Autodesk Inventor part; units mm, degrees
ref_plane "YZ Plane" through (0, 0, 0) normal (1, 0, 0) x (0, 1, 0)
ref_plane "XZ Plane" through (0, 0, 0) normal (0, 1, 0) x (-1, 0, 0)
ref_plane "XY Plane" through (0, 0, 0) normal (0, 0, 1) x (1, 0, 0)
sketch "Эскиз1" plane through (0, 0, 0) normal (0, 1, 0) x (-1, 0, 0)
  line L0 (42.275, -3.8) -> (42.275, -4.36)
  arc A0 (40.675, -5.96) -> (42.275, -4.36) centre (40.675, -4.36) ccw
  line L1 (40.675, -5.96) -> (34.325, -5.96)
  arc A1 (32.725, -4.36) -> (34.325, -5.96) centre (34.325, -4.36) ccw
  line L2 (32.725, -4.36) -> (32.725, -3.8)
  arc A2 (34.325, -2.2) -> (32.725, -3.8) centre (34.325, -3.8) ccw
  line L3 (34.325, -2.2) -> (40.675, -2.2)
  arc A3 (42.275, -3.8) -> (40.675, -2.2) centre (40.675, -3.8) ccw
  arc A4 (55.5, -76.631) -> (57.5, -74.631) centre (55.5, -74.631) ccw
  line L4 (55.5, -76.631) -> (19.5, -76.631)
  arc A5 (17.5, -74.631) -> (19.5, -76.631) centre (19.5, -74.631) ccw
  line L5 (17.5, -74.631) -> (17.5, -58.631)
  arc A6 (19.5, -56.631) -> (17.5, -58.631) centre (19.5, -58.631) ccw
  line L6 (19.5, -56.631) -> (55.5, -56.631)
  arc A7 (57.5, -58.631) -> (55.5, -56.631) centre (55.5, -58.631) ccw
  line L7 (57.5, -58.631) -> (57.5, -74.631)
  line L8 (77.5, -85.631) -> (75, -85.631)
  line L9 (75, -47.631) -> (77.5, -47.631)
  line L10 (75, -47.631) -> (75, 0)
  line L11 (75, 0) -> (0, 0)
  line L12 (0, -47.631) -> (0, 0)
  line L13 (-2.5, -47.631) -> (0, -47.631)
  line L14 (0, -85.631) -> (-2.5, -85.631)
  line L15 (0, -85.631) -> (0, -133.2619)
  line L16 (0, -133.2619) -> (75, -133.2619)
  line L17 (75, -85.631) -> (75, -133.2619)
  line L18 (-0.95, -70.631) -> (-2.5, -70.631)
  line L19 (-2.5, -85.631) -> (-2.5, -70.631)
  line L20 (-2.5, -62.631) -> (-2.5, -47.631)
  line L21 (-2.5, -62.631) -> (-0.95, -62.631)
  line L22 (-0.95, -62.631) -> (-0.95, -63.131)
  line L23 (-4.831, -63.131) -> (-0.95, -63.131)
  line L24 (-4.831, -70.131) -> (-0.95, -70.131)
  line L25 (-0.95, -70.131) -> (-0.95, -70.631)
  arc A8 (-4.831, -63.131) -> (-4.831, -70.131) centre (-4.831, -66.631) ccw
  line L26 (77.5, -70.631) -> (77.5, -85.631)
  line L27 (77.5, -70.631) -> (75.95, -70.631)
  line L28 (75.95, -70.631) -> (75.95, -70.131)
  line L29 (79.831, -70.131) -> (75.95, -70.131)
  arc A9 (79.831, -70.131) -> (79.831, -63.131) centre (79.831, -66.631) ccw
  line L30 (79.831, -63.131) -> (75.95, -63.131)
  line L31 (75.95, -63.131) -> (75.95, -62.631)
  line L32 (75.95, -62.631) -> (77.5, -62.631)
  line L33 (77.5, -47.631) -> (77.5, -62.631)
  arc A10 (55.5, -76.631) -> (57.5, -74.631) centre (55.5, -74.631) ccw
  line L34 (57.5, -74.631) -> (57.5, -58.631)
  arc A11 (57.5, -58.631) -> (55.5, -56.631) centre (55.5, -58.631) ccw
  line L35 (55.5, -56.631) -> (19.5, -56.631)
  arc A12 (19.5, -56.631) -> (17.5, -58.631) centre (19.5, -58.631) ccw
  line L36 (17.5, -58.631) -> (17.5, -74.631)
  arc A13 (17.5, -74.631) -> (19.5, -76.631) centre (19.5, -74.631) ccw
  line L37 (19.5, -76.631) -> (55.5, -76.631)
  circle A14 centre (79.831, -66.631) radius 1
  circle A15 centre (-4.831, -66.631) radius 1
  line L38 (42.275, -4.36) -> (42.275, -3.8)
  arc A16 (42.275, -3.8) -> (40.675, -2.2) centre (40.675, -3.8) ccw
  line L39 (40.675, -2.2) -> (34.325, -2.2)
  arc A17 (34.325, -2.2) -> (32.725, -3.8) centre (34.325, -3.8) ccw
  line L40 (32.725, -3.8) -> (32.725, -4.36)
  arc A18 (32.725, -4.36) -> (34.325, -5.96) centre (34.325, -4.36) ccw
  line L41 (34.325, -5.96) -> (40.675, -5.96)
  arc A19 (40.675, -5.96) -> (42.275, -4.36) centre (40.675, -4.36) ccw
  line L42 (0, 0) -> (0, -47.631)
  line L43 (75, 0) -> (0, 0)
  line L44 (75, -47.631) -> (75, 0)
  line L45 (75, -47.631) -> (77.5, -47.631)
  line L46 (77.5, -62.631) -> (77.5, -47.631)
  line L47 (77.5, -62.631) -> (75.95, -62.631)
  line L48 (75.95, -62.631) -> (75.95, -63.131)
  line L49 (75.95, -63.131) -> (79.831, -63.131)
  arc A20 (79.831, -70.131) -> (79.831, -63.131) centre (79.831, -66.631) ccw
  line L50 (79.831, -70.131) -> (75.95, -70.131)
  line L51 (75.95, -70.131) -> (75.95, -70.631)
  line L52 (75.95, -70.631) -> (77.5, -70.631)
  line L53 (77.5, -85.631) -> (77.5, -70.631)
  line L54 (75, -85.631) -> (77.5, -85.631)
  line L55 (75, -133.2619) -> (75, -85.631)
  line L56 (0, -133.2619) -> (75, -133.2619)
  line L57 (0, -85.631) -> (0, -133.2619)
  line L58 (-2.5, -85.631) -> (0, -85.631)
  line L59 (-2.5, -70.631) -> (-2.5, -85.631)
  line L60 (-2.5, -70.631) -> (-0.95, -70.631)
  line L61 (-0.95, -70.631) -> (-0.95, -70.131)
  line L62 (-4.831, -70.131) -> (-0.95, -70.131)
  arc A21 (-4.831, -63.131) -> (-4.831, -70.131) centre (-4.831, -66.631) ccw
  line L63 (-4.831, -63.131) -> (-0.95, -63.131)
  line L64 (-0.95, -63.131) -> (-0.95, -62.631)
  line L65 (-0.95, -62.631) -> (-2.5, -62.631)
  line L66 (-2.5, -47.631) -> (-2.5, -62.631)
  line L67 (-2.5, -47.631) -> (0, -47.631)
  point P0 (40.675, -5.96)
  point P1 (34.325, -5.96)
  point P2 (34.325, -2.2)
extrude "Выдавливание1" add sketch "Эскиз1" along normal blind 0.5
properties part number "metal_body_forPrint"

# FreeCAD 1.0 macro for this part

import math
import FreeCAD as App
import Part
import Sketcher
from FreeCAD import Vector
Q = App.Units.Quantity

doc = App.newDocument("Part")
body = doc.addObject("PartDesign::Body", "Body")

# Sketch on XZ plane
sketch1 = body.newObject("Sketcher::SketchObject", "Sketch")
sketch1.AttachmentSupport = (doc.getObject("XZ_Plane"), [""])
sketch1.MapMode = "FlatFace"
sketch1.addGeometry(Part.LineSegment(Vector(-75, -85.631, 0), Vector(-77.5, -85.631, 0)), False)
sketch1.addGeometry(Part.LineSegment(Vector(-77.5, -85.631, 0), Vector(-77.5, -70.631, 0)), False)
sketch1.addGeometry(Part.LineSegment(Vector(-77.5, -70.631, 0), Vector(-75.95, -70.631, 0)), False)
sketch1.addGeometry(Part.LineSegment(Vector(-75.95, -70.631, 0), Vector(-75.95, -70.131, 0)), False)
sketch1.addGeometry(Part.LineSegment(Vector(-75.95, -70.131, 0), Vector(-79.831, -70.131, 0)), False)
sketch1.addGeometry(Part.ArcOfCircle(Part.Circle(Vector(-79.831, -66.631, 0), Vector(0, 0, 1), 3.5), math.radians(90), math.radians(270)), False)
sketch1.addGeometry(Part.LineSegment(Vector(-79.831, -63.131, 0), Vector(-75.95, -63.131, 0)), False)
sketch1.addGeometry(Part.LineSegment(Vector(-75.95, -63.131, 0), Vector(-75.95, -62.631, 0)), False)
sketch1.addGeometry(Part.LineSegment(Vector(-75.95, -62.631, 0), Vector(-77.5, -62.631, 0)), False)
sketch1.addGeometry(Part.LineSegment(Vector(-77.5, -62.631, 0), Vector(-77.5, -47.631, 0)), False)
sketch1.addGeometry(Part.LineSegment(Vector(-77.5, -47.631, 0), Vector(-75, -47.631, 0)), False)
sketch1.addGeometry(Part.LineSegment(Vector(-75, -47.631, 0), Vector(-75, 0, 0)), False)
sketch1.addGeometry(Part.LineSegment(Vector(-75, 0, 0), Vector(0, 0, 0)), False)
sketch1.addGeometry(Part.LineSegment(Vector(0, 0, 0), Vector(0, -47.631, 0)), False)
sketch1.addGeometry(Part.LineSegment(Vector(0, -47.631, 0), Vector(2.5, -47.631, 0)), False)
sketch1.addGeometry(Part.LineSegment(Vector(2.5, -47.631, 0), Vector(2.5, -62.631, 0)), False)
sketch1.addGeometry(Part.LineSegment(Vector(2.5, -62.631, 0), Vector(0.95, -62.631, 0)), False)
sketch1.addGeometry(Part.LineSegment(Vector(0.95, -62.631, 0), Vector(0.95, -63.131, 0)), False)
sketch1.addGeometry(Part.LineSegment(Vector(0.95, -63.131, 0), Vector(4.831, -63.131, 0)), False)
sketch1.addGeometry(Part.ArcOfCircle(Part.Circle(Vector(4.831, -66.631, 0), Vector(0, 0, 1), 3.5), math.radians(-90), math.radians(90)), False)
sketch1.addGeometry(Part.LineSegment(Vector(4.831, -70.131, 0), Vector(0.95, -70.131, 0)), False)
sketch1.addGeometry(Part.LineSegment(Vector(0.95, -70.131, 0), Vector(0.95, -70.631, 0)), False)
sketch1.addGeometry(Part.LineSegment(Vector(0.95, -70.631, 0), Vector(2.5, -70.631, 0)), False)
sketch1.addGeometry(Part.LineSegment(Vector(2.5, -70.631, 0), Vector(2.5, -85.631, 0)), False)
sketch1.addGeometry(Part.LineSegment(Vector(2.5, -85.631, 0), Vector(0, -85.631, 0)), False)
sketch1.addGeometry(Part.LineSegment(Vector(0, -85.631, 0), Vector(0, -133.2619, 0)), False)
sketch1.addGeometry(Part.LineSegment(Vector(0, -133.2619, 0), Vector(-75, -133.2619, 0)), False)
sketch1.addGeometry(Part.LineSegment(Vector(-75, -133.2619, 0), Vector(-75, -85.631, 0)), False)
sketch1.addGeometry(Part.Circle(Vector(4.831, -66.631, 0), Vector(0, 0, 1), 1), False)
sketch1.addGeometry(Part.ArcOfCircle(Part.Circle(Vector(-55.5, -74.631, 0), Vector(0, 0, 1), 2), math.radians(180), math.radians(270)), False)
sketch1.addGeometry(Part.LineSegment(Vector(-55.5, -76.631, 0), Vector(-19.5, -76.631, 0)), False)
sketch1.addGeometry(Part.ArcOfCircle(Part.Circle(Vector(-19.5, -74.631, 0), Vector(0, 0, 1), 2), math.radians(-90), math.radians(0)), False)
sketch1.addGeometry(Part.LineSegment(Vector(-17.5, -74.631, 0), Vector(-17.5, -58.631, 0)), False)
sketch1.addGeometry(Part.ArcOfCircle(Part.Circle(Vector(-19.5, -58.631, 0), Vector(0, 0, 1), 2), math.radians(0), math.radians(90)), False)
sketch1.addGeometry(Part.LineSegment(Vector(-19.5, -56.631, 0), Vector(-55.5, -56.631, 0)), False)
sketch1.addGeometry(Part.ArcOfCircle(Part.Circle(Vector(-55.5, -58.631, 0), Vector(0, 0, 1), 2), math.radians(90), math.radians(180)), False)
sketch1.addGeometry(Part.LineSegment(Vector(-57.5, -58.631, 0), Vector(-57.5, -74.631, 0)), False)
sketch1.addGeometry(Part.Circle(Vector(-79.831, -66.631, 0), Vector(0, 0, 1), 1), False)
sketch1.addGeometry(Part.ArcOfCircle(Part.Circle(Vector(-40.675, -3.8, 0), Vector(0, 0, 1), 1.6), math.radians(90), math.radians(180)), False)
sketch1.addGeometry(Part.LineSegment(Vector(-42.275, -3.8, 0), Vector(-42.275, -4.36, 0)), False)
sketch1.addGeometry(Part.ArcOfCircle(Part.Circle(Vector(-40.675, -4.36, 0), Vector(0, 0, 1), 1.6), math.radians(180), math.radians(270)), False)
sketch1.addGeometry(Part.LineSegment(Vector(-40.675, -5.96, 0), Vector(-34.325, -5.96, 0)), False)
sketch1.addGeometry(Part.ArcOfCircle(Part.Circle(Vector(-34.325, -4.36, 0), Vector(0, 0, 1), 1.6), math.radians(-90), math.radians(0)), False)
sketch1.addGeometry(Part.LineSegment(Vector(-32.725, -4.36, 0), Vector(-32.725, -3.8, 0)), False)
sketch1.addGeometry(Part.ArcOfCircle(Part.Circle(Vector(-34.325, -3.8, 0), Vector(0, 0, 1), 1.6), math.radians(0), math.radians(90)), False)
sketch1.addGeometry(Part.LineSegment(Vector(-34.325, -2.2, 0), Vector(-40.675, -2.2, 0)), False)
sketch1.addConstraint(Sketcher.Constraint("Coincident", 0, 2, 1, 1))
sketch1.addConstraint(Sketcher.Constraint("Coincident", 1, 2, 2, 1))
sketch1.addConstraint(Sketcher.Constraint("Coincident", 2, 2, 3, 1))
sketch1.addConstraint(Sketcher.Constraint("Coincident", 3, 2, 4, 1))
sketch1.addConstraint(Sketcher.Constraint("Tangent", 4, 2, 5, 2))
sketch1.addConstraint(Sketcher.Constraint("Tangent", 5, 1, 6, 1))
sketch1.addConstraint(Sketcher.Constraint("Coincident", 6, 2, 7, 1))
sketch1.addConstraint(Sketcher.Constraint("Coincident", 7, 2, 8, 1))
sketch1.addConstraint(Sketcher.Constraint("Coincident", 8, 2, 9, 1))
sketch1.addConstraint(Sketcher.Constraint("Coincident", 9, 2, 10, 1))
sketch1.addConstraint(Sketcher.Constraint("Coincident", 10, 2, 11, 1))
sketch1.addConstraint(Sketcher.Constraint("Coincident", 11, 2, 12, 1))
sketch1.addConstraint(Sketcher.Constraint("Coincident", 12, 2, 13, 1))
sketch1.addConstraint(Sketcher.Constraint("Coincident", 13, 2, 14, 1))
sketch1.addConstraint(Sketcher.Constraint("Coincident", 14, 2, 15, 1))
sketch1.addConstraint(Sketcher.Constraint("Coincident", 15, 2, 16, 1))
sketch1.addConstraint(Sketcher.Constraint("Coincident", 16, 2, 17, 1))
sketch1.addConstraint(Sketcher.Constraint("Coincident", 17, 2, 18, 1))
sketch1.addConstraint(Sketcher.Constraint("Tangent", 18, 2, 19, 2))
sketch1.addConstraint(Sketcher.Constraint("Tangent", 19, 1, 20, 1))
sketch1.addConstraint(Sketcher.Constraint("Coincident", 20, 2, 21, 1))
sketch1.addConstraint(Sketcher.Constraint("Coincident", 21, 2, 22, 1))
sketch1.addConstraint(Sketcher.Constraint("Coincident", 22, 2, 23, 1))
sketch1.addConstraint(Sketcher.Constraint("Coincident", 23, 2, 24, 1))
sketch1.addConstraint(Sketcher.Constraint("Coincident", 24, 2, 25, 1))
sketch1.addConstraint(Sketcher.Constraint("Coincident", 25, 2, 26, 1))
sketch1.addConstraint(Sketcher.Constraint("Coincident", 26, 2, 27, 1))
sketch1.addConstraint(Sketcher.Constraint("Coincident", 27, 2, 0, 1))
sketch1.addConstraint(Sketcher.Constraint("Tangent", 29, 2, 30, 1))
sketch1.addConstraint(Sketcher.Constraint("Tangent", 30, 2, 31, 1))
sketch1.addConstraint(Sketcher.Constraint("Tangent", 31, 2, 32, 1))
sketch1.addConstraint(Sketcher.Constraint("Tangent", 32, 2, 33, 1))
sketch1.addConstraint(Sketcher.Constraint("Tangent", 33, 2, 34, 1))
sketch1.addConstraint(Sketcher.Constraint("Tangent", 34, 2, 35, 1))
sketch1.addConstraint(Sketcher.Constraint("Tangent", 35, 2, 36, 1))
sketch1.addConstraint(Sketcher.Constraint("Tangent", 36, 2, 29, 1))
sketch1.addConstraint(Sketcher.Constraint("Tangent", 38, 2, 39, 1))
sketch1.addConstraint(Sketcher.Constraint("Tangent", 39, 2, 40, 1))
sketch1.addConstraint(Sketcher.Constraint("Tangent", 40, 2, 41, 1))
sketch1.addConstraint(Sketcher.Constraint("Tangent", 41, 2, 42, 1))
sketch1.addConstraint(Sketcher.Constraint("Tangent", 42, 2, 43, 1))
sketch1.addConstraint(Sketcher.Constraint("Tangent", 43, 2, 44, 1))
sketch1.addConstraint(Sketcher.Constraint("Tangent", 44, 2, 45, 1))
sketch1.addConstraint(Sketcher.Constraint("Tangent", 45, 2, 38, 1))
sketch1.addConstraint(Sketcher.Constraint("Horizontal", 0))
sketch1.addConstraint(Sketcher.Constraint("Vertical", 1))
sketch1.addConstraint(Sketcher.Constraint("Horizontal", 2))
sketch1.addConstraint(Sketcher.Constraint("Vertical", 3))
sketch1.addConstraint(Sketcher.Constraint("Horizontal", 4))
sketch1.addConstraint(Sketcher.Constraint("Horizontal", 6))
sketch1.addConstraint(Sketcher.Constraint("Vertical", 7))
sketch1.addConstraint(Sketcher.Constraint("Horizontal", 8))
sketch1.addConstraint(Sketcher.Constraint("Vertical", 9))
sketch1.addConstraint(Sketcher.Constraint("Horizontal", 10))
sketch1.addConstraint(Sketcher.Constraint("Vertical", 11))
sketch1.addConstraint(Sketcher.Constraint("Horizontal", 12))
sketch1.addConstraint(Sketcher.Constraint("Vertical", 13))
sketch1.addConstraint(Sketcher.Constraint("Horizontal", 14))
sketch1.addConstraint(Sketcher.Constraint("Vertical", 15))
sketch1.addConstraint(Sketcher.Constraint("Horizontal", 16))
sketch1.addConstraint(Sketcher.Constraint("Vertical", 17))
sketch1.addConstraint(Sketcher.Constraint("Horizontal", 18))
sketch1.addConstraint(Sketcher.Constraint("Horizontal", 20))
sketch1.addConstraint(Sketcher.Constraint("Vertical", 21))
sketch1.addConstraint(Sketcher.Constraint("Horizontal", 22))
sketch1.addConstraint(Sketcher.Constraint("Vertical", 23))
sketch1.addConstraint(Sketcher.Constraint("Horizontal", 24))
sketch1.addConstraint(Sketcher.Constraint("Vertical", 25))
sketch1.addConstraint(Sketcher.Constraint("Horizontal", 26))
sketch1.addConstraint(Sketcher.Constraint("Vertical", 27))
sketch1.addConstraint(Sketcher.Constraint("Horizontal", 30))
sketch1.addConstraint(Sketcher.Constraint("Vertical", 32))
sketch1.addConstraint(Sketcher.Constraint("Horizontal", 34))
sketch1.addConstraint(Sketcher.Constraint("Vertical", 36))
sketch1.addConstraint(Sketcher.Constraint("Vertical", 39))
sketch1.addConstraint(Sketcher.Constraint("Horizontal", 41))
sketch1.addConstraint(Sketcher.Constraint("Vertical", 43))
sketch1.addConstraint(Sketcher.Constraint("Horizontal", 45))
sketch1.addConstraint(Sketcher.Constraint("Coincident", 12, 2, -1, 1))
sketch1.addConstraint(Sketcher.Constraint("Coincident", 28, 3, 19, 3))
sketch1.addConstraint(Sketcher.Constraint("Coincident", 37, 3, 5, 3))
sketch1.addConstraint(Sketcher.Constraint("Equal", 5, 19))
sketch1.addConstraint(Sketcher.Constraint("Equal", 29, 31))
sketch1.addConstraint(Sketcher.Constraint("Equal", 31, 33))
sketch1.addConstraint(Sketcher.Constraint("Equal", 33, 35))
sketch1.addConstraint(Sketcher.Constraint("Equal", 28, 37))
sketch1.addConstraint(Sketcher.Constraint("Equal", 38, 40))
sketch1.addConstraint(Sketcher.Constraint("Equal", 40, 42))
sketch1.addConstraint(Sketcher.Constraint("Equal", 42, 44))
sketch1.addConstraint(Sketcher.Constraint("PointOnObject", 24, 2, -2))
sketch1.addConstraint(Sketcher.Constraint("Horizontal", 5, 3, 19, 3))
sketch1.addConstraint(Sketcher.Constraint("Horizontal", 10, 2, 13, 2))
sketch1.addConstraint(Sketcher.Constraint("Horizontal", 8, 2, 15, 2))
sketch1.addConstraint(Sketcher.Constraint("Horizontal", 2, 2, 21, 2))
sketch1.addConstraint(Sketcher.Constraint("Horizontal", 0, 2, 23, 2))
sketch1.addConstraint(Sketcher.Constraint("Vertical", 3, 2, 6, 2))
sketch1.addConstraint(Sketcher.Constraint("Vertical", 1, 2, 8, 2))
sketch1.addConstraint(Sketcher.Constraint("Vertical", 17, 2, 20, 2))
sketch1.addConstraint(Sketcher.Constraint("Vertical", 15, 2, 22, 2))
sketch1.addConstraint(Sketcher.Constraint("Vertical", 11, 2, 26, 2))
sketch1.addConstraint(Sketcher.Constraint("Equal", 10, 14))
sketch1.addConstraint(Sketcher.Constraint("Equal", 8, 16))
sketch1.addConstraint(Sketcher.Constraint("Equal", 6, 18))
sketch1.addConstraint(Sketcher.Constraint("Equal", 3, 7))
sketch1.addConstraint(Sketcher.Constraint("Equal", 1, 9))
sketch1.addConstraint(Sketcher.Constraint("Equal", 13, 25))
sketch1.addConstraint(Sketcher.Constraint("Diameter", 28, Q("2 mm")))
sketch1.addConstraint(Sketcher.Constraint("Radius", 29, Q("2 mm")))
sketch1.addConstraint(Sketcher.Constraint("Radius", 5, Q("3.5 mm")))
sketch1.addConstraint(Sketcher.Constraint("Radius", 38, Q("1.6 mm")))
sketch1.addConstraint(Sketcher.Constraint("DistanceX", 12, 1, 12, 2, Q("75 mm")))
sketch1.addConstraint(Sketcher.Constraint("DistanceX", 30, 1, 30, 2, Q("36 mm")))
sketch1.addConstraint(Sketcher.Constraint("DistanceY", 1, 1, 1, 2, Q("15 mm")))
sketch1.addConstraint(Sketcher.Constraint("DistanceY", 32, 1, 32, 2, Q("16 mm")))
sketch1.addConstraint(Sketcher.Constraint("DistanceX", 0, 2, 0, 1, Q("2.5 mm")))
sketch1.addConstraint(Sketcher.Constraint("DistanceY", 3, 1, 3, 2, Q("0.5 mm")))
sketch1.addConstraint(Sketcher.Constraint("DistanceY", 29, 3, 5, 3, Q("8 mm")))
sketch1.addConstraint(Sketcher.Constraint("DistanceX", 0, 2, 29, 3, Q("22 mm")))
sketch1.addConstraint(Sketcher.Constraint("DistanceX", 2, 1, 2, 2, Q("1.55 mm")))
sketch1.addConstraint(Sketcher.Constraint("DistanceX", 41, 1, 41, 2, Q("6.35 mm")))
sketch1.addConstraint(Sketcher.Constraint("DistanceY", 39, 2, 39, 1, Q("0.56 mm")))
sketch1.addConstraint(Sketcher.Constraint("DistanceY", 38, 3, -1, 1, Q("3.8 mm")))
sketch1.addConstraint(Sketcher.Constraint("DistanceX", 4, 2, 4, 1, Q("3.881 mm")))
sketch1.addConstraint(Sketcher.Constraint("DistanceY", 11, 1, 11, 2, Q("47.631 mm")))
sketch1.addConstraint(Sketcher.Constraint("DistanceX", 38, 3, -1, 1, Q("40.675 mm")))
pad1 = body.newObject("PartDesign::Pad", "Pad")
pad1.Profile = sketch1
pad1.Length = 0.5
pad1.Reversed = True

doc.recompute()
